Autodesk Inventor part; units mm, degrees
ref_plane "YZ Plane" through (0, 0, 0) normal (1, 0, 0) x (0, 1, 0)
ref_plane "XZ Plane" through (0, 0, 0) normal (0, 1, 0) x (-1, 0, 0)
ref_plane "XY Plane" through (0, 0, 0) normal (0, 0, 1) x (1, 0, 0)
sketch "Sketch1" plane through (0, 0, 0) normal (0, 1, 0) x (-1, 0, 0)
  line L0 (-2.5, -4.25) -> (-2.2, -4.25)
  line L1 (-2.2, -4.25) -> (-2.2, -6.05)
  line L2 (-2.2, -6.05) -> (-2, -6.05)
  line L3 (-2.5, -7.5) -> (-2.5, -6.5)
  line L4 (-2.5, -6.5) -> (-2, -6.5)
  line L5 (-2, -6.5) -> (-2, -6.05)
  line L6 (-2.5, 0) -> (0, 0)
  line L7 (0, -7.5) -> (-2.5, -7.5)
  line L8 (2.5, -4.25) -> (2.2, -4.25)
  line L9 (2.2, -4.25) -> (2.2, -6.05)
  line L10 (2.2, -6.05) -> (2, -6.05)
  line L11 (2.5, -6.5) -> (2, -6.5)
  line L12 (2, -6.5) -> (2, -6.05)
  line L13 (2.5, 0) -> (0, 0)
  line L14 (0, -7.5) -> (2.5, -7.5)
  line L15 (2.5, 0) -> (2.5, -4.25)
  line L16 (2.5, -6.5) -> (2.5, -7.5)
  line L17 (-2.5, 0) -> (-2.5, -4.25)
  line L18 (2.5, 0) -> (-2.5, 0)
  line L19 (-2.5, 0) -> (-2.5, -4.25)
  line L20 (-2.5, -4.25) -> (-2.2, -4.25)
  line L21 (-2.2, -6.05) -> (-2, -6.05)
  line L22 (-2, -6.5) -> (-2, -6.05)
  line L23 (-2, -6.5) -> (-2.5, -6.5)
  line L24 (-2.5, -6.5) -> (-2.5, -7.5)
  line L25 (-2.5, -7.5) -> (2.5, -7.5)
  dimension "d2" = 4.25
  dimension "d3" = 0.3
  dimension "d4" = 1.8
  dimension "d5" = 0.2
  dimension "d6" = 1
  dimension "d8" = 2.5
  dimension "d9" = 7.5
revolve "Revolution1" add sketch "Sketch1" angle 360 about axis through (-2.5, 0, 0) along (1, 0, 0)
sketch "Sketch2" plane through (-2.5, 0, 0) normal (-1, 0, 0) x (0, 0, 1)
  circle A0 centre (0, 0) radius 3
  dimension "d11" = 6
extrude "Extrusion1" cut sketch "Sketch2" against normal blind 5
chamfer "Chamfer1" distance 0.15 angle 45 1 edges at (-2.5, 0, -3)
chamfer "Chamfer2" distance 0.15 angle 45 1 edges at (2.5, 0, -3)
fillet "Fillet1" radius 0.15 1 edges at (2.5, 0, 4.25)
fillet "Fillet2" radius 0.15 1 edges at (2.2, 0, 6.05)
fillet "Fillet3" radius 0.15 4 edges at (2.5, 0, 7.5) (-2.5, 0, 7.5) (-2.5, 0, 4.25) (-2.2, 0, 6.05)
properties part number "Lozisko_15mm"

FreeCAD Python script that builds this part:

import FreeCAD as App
import Part
import Sketcher

V = App.Vector
Q = App.Units.Quantity


def edges_at(feature, points):
    """Names of the edges that pass closest to the given points."""
    edges = feature.Shape.Edges
    near = lambda p: min(range(len(edges)), key=lambda i: edges[i].distToShape(Part.Vertex(*p))[0])
    return sorted({f"Edge{near(p) + 1}" for p in points})

doc = App.newDocument("Part")
body = doc.addObject("PartDesign::Body", "Body")

# Sketch on XZ plane
sketch1 = body.newObject("Sketcher::SketchObject", "Sketch")
sketch1.AttachmentSupport = (doc.getObject("XZ_Plane"), [""])
sketch1.MapMode = "FlatFace"
sketch1.addGeometry(Part.LineSegment(V(2.5, 0, 0), V(2.5, -4.25, 0)), False)
sketch1.addGeometry(Part.LineSegment(V(2.5, -4.25, 0), V(2.2, -4.25, 0)), False)
sketch1.addGeometry(Part.LineSegment(V(2.2, -4.25, 0), V(2.2, -6.05, 0)), False)
sketch1.addGeometry(Part.LineSegment(V(2.2, -6.05, 0), V(2, -6.05, 0)), False)
sketch1.addGeometry(Part.LineSegment(V(2, -6.05, 0), V(2, -6.5, 0)), False)
sketch1.addGeometry(Part.LineSegment(V(2, -6.5, 0), V(2.5, -6.5, 0)), False)
sketch1.addGeometry(Part.LineSegment(V(2.5, -6.5, 0), V(2.5, -7.5, 0)), False)
sketch1.addGeometry(Part.LineSegment(V(2.5, -7.5, 0), V(-2.5, -7.5, 0)), False)
sketch1.addGeometry(Part.LineSegment(V(-2.5, -7.5, 0), V(-2.5, -6.5, 0)), False)
sketch1.addGeometry(Part.LineSegment(V(-2.5, -6.5, 0), V(-2, -6.5, 0)), False)
sketch1.addGeometry(Part.LineSegment(V(-2, -6.5, 0), V(-2, -6.05, 0)), False)
sketch1.addGeometry(Part.LineSegment(V(-2, -6.05, 0), V(-2.2, -6.05, 0)), False)
sketch1.addGeometry(Part.LineSegment(V(-2.2, -6.05, 0), V(-2.2, -4.25, 0)), False)
sketch1.addGeometry(Part.LineSegment(V(-2.2, -4.25, 0), V(-2.5, -4.25, 0)), False)
sketch1.addGeometry(Part.LineSegment(V(-2.5, -4.25, 0), V(-2.5, 0, 0)), False)
sketch1.addGeometry(Part.LineSegment(V(-2.5, 0, 0), V(2.5, 0, 0)), False)
sketch1.addConstraint(Sketcher.Constraint("Coincident", 0, 2, 1, 1))
sketch1.addConstraint(Sketcher.Constraint("Coincident", 1, 2, 2, 1))
sketch1.addConstraint(Sketcher.Constraint("Coincident", 2, 2, 3, 1))
sketch1.addConstraint(Sketcher.Constraint("Coincident", 3, 2, 4, 1))
sketch1.addConstraint(Sketcher.Constraint("Coincident", 4, 2, 5, 1))
sketch1.addConstraint(Sketcher.Constraint("Coincident", 5, 2, 6, 1))
sketch1.addConstraint(Sketcher.Constraint("Coincident", 6, 2, 7, 1))
sketch1.addConstraint(Sketcher.Constraint("Coincident", 7, 2, 8, 1))
sketch1.addConstraint(Sketcher.Constraint("Coincident", 8, 2, 9, 1))
sketch1.addConstraint(Sketcher.Constraint("Coincident", 9, 2, 10, 1))
sketch1.addConstraint(Sketcher.Constraint("Coincident", 10, 2, 11, 1))
sketch1.addConstraint(Sketcher.Constraint("Coincident", 11, 2, 12, 1))
sketch1.addConstraint(Sketcher.Constraint("Coincident", 12, 2, 13, 1))
sketch1.addConstraint(Sketcher.Constraint("Coincident", 13, 2, 14, 1))
sketch1.addConstraint(Sketcher.Constraint("Coincident", 14, 2, 15, 1))
sketch1.addConstraint(Sketcher.Constraint("Coincident", 15, 2, 0, 1))
sketch1.addConstraint(Sketcher.Constraint("Vertical", 0))
sketch1.addConstraint(Sketcher.Constraint("Horizontal", 1))
sketch1.addConstraint(Sketcher.Constraint("Vertical", 2))
sketch1.addConstraint(Sketcher.Constraint("Horizontal", 3))
sketch1.addConstraint(Sketcher.Constraint("Vertical", 4))
sketch1.addConstraint(Sketcher.Constraint("Horizontal", 5))
sketch1.addConstraint(Sketcher.Constraint("Vertical", 6))
sketch1.addConstraint(Sketcher.Constraint("Horizontal", 7))
sketch1.addConstraint(Sketcher.Constraint("Vertical", 8))
sketch1.addConstraint(Sketcher.Constraint("Horizontal", 9))
sketch1.addConstraint(Sketcher.Constraint("Vertical", 10))
sketch1.addConstraint(Sketcher.Constraint("Horizontal", 11))
sketch1.addConstraint(Sketcher.Constraint("Vertical", 12))
sketch1.addConstraint(Sketcher.Constraint("Horizontal", 13))
sketch1.addConstraint(Sketcher.Constraint("Vertical", 14))
sketch1.addConstraint(Sketcher.Constraint("Horizontal", 15))
sketch1.addConstraint(Sketcher.Constraint("Symmetric", 14, 2, 15, 2, -1, 1))
sketch1.addConstraint(Sketcher.Constraint("Symmetric", 5, 2, 8, 2, -2))
sketch1.addConstraint(Sketcher.Constraint("Symmetric", 3, 2, 10, 2, -2))
sketch1.addConstraint(Sketcher.Constraint("Symmetric", 1, 2, 12, 2, -2))
sketch1.addConstraint(Sketcher.Constraint("Vertical", 0, 2, 5, 2))
sketch1.addConstraint(Sketcher.Constraint("DistanceY", 6, 2, 6, 1, Q("1 mm")))
sketch1.addConstraint(Sketcher.Constraint("DistanceX", 1, 2, 1, 1, Q("0.3 mm")))
sketch1.addConstraint(Sketcher.Constraint("DistanceX", 3, 2, 3, 1, Q("0.2 mm")))
sketch1.addConstraint(Sketcher.Constraint("DistanceY", 2, 2, 2, 1, Q("1.8 mm")))
sketch1.addConstraint(Sketcher.Constraint("DistanceY", 0, 2, 0, 1, Q("4.25 mm")))
sketch1.addConstraint(Sketcher.Constraint("DistanceX", -1, 1, 0, 2, Q("2.5 mm")))
sketch1.addConstraint(Sketcher.Constraint("DistanceY", 6, 2, -1, 1, Q("7.5 mm")))
revolution = body.newObject("PartDesign::Revolution", "Revolution")
revolution.Profile = sketch1
revolution.ReferenceAxis = (sketch1, ["H_Axis"])
revolution.Angle = 360

# Sketch on YZ plane
sketch2 = body.newObject("Sketcher::SketchObject", "Sketch001")
sketch2.AttachmentSupport = (doc.getObject("YZ_Plane"), [""])
sketch2.MapMode = "FlatFace"
sketch2.AttachmentOffset = App.Placement(V(0, 0, -2.5), App.Rotation())
sketch2.addGeometry(Part.Circle(V(0, 0, 0), V(0, 0, 1), 3), False)
sketch2.addConstraint(Sketcher.Constraint("Coincident", 0, 3, -1, 1))
sketch2.addConstraint(Sketcher.Constraint("Diameter", 0, Q("6 mm")))
pocket1 = body.newObject("PartDesign::Pocket", "Pocket")
pocket1.Profile = sketch2
pocket1.Length = 5
pocket1.Reversed = True
doc.recompute()

chamfer = body.newObject("PartDesign::Chamfer", "Chamfer")
chamfer.Base = (pocket1, edges_at(pocket1, [(-2.5, 0, -3)]))
chamfer.Size = 0.15
doc.recompute()

chamfer2 = body.newObject("PartDesign::Chamfer", "Chamfer001")
chamfer2.Base = (chamfer, edges_at(chamfer, [(2.5, 0, -3)]))
chamfer2.Size = 0.15
doc.recompute()

fillet = body.newObject("PartDesign::Fillet", "Fillet")
fillet.Base = (chamfer2, edges_at(chamfer2, [(2.5, 0, 4.25)]))
fillet.Radius = 0.15
doc.recompute()

fillet2 = body.newObject("PartDesign::Fillet", "Fillet001")
fillet2.Base = (fillet, edges_at(fillet, [(2.2, 0, 6.05)]))
fillet2.Radius = 0.15
doc.recompute()

fillet3 = body.newObject("PartDesign::Fillet", "Fillet002")
fillet3.Base = (fillet2, edges_at(fillet2, [
    (2.5, 0, 7.5),
    (-2.5, 0, 7.5),
    (-2.5, 0, 4.25),
    (-2.2, 0, 6.05),
]))
fillet3.Radius = 0.15

doc.recompute()
